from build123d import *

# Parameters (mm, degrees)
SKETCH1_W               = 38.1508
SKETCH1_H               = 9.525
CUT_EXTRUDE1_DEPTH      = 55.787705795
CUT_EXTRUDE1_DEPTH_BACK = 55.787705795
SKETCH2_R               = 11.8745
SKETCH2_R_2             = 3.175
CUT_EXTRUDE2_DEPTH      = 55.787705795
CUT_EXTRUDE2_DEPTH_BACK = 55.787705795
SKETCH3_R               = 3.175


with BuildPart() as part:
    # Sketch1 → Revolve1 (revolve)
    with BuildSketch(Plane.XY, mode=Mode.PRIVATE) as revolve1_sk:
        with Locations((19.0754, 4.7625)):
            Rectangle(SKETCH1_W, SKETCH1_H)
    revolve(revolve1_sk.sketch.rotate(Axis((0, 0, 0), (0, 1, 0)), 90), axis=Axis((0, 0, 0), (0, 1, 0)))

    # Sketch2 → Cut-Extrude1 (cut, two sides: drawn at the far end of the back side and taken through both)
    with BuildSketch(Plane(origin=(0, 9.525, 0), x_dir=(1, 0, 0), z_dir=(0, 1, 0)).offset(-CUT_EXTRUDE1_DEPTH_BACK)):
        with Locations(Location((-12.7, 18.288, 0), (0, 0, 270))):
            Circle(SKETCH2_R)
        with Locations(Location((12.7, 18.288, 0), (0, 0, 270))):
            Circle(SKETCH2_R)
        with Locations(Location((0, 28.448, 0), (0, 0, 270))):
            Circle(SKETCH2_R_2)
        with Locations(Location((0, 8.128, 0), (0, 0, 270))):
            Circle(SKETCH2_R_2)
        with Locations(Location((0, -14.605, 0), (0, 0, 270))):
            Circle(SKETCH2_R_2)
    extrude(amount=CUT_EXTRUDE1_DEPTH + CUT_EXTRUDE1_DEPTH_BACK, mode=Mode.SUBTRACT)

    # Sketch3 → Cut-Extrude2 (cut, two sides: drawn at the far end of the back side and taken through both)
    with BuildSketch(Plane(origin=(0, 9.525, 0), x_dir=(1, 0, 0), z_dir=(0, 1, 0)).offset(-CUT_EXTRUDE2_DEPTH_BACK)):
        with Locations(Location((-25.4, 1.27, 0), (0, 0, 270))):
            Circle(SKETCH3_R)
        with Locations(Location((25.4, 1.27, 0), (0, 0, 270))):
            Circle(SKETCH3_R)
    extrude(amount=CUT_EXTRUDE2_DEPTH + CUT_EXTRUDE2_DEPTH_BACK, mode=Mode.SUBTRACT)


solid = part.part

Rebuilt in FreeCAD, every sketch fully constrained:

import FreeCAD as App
import Part
import Sketcher

V = App.Vector
Q = App.Units.Quantity


def add_polygon(sketch, points):
    """Adds a closed chain of lines whose ends are joined by coincident constraints."""
    first, n = sketch.GeometryCount, len(points)
    for a, b in zip(points, points[1:] + points[:1]):
        sketch.addGeometry(Part.LineSegment(App.Vector(*a, 0), App.Vector(*b, 0)), False)
    for i in range(n):
        sketch.addConstraint(Sketcher.Constraint("Coincident", first + i, 2, first + (i + 1) % n, 1))

doc = App.newDocument("Part")
body = doc.addObject("PartDesign::Body", "Body")

# Sketch on XY plane
sketch1 = body.newObject("Sketcher::SketchObject", "Sketch")
sketch1.AttachmentSupport = (doc.getObject("XY_Plane"), [""])
sketch1.MapMode = "FlatFace"
add_polygon(sketch1, [(0, 10), (0, 0), (38, 0), (38, 10)])  # lines 0-3
sketch1.addConstraint(Sketcher.Constraint("Vertical", 0))
sketch1.addConstraint(Sketcher.Constraint("Horizontal", 1))
sketch1.addConstraint(Sketcher.Constraint("Vertical", 2))
sketch1.addConstraint(Sketcher.Constraint("Horizontal", 3))
sketch1.addConstraint(Sketcher.Constraint("Coincident", 0, 2, -1, 1))
sketch1.addConstraint(Sketcher.Constraint("DistanceX", 1, 1, 1, 2, Q("1.502 in")))
sketch1.addConstraint(Sketcher.Constraint("DistanceY", 0, 2, 0, 1, Q("0.375 in")))
revolution = body.newObject("PartDesign::Revolution", "Revolution")
revolution.Profile = sketch1
revolution.ReferenceAxis = (sketch1, ["V_Axis"])
revolution.Angle = 360

# Sketch on XZ plane
sketch2 = body.newObject("Sketcher::SketchObject", "Sketch001")
sketch2.AttachmentSupport = (doc.getObject("XZ_Plane"), [""])
sketch2.MapMode = "FlatFace"
sketch2.AttachmentOffset = App.Placement(V(0, 0, -0.375 * 25.4), App.Rotation())
sketch2.addGeometry(Part.Circle(V(-12.7, -18.3, 0), V(0, 0, 1), 11.9), False)
sketch2.addGeometry(Part.Circle(V(12.7, -18.3, 0), V(0, 0, 1), 11.9), False)
sketch2.addGeometry(Part.Circle(V(0, -28.4, 0), V(0, 0, 1), 3.2), False)
sketch2.addGeometry(Part.Circle(V(0, -8.1, 0), V(0, 0, 1), 3.2), False)
sketch2.addGeometry(Part.Circle(V(0, 14.6, 0), V(0, 0, 1), 3.2), False)
sketch2.addConstraint(Sketcher.Constraint("Equal", 0, 1))
sketch2.addConstraint(Sketcher.Constraint("Equal", 2, 3))
sketch2.addConstraint(Sketcher.Constraint("Equal", 3, 4))
sketch2.addConstraint(Sketcher.Constraint("Symmetric", 0, 3, 1, 3, -2))
sketch2.addConstraint(Sketcher.Constraint("PointOnObject", 2, 3, -2))
sketch2.addConstraint(Sketcher.Constraint("PointOnObject", 3, 3, -2))
sketch2.addConstraint(Sketcher.Constraint("PointOnObject", 4, 3, -2))
sketch2.addConstraint(Sketcher.Constraint("Diameter", 2, Q("0.25 in")))
sketch2.addConstraint(Sketcher.Constraint("Diameter", 0, Q("0.935 in")))
sketch2.addConstraint(Sketcher.Constraint("DistanceX", 0, 3, 1, 3, Q("1 in")))
sketch2.addConstraint(Sketcher.Constraint("DistanceY", 2, 3, 0, 3, Q("0.4 in")))
sketch2.addConstraint(Sketcher.Constraint("DistanceY", 0, 3, 3, 3, Q("0.4 in")))
sketch2.addConstraint(Sketcher.Constraint("DistanceY", 0, 3, -1, 1, Q("0.72 in")))
sketch2.addConstraint(Sketcher.Constraint("DistanceY", -1, 1, 4, 3, Q("0.575 in")))
pocket1 = body.newObject("PartDesign::Pocket", "Pocket")
pocket1.Profile = sketch2
pocket1.Type = "ThroughAll"
pocket1.Midplane = True

# Sketch on XZ plane
sketch3 = body.newObject("Sketcher::SketchObject", "Sketch002")
sketch3.AttachmentSupport = (doc.getObject("XZ_Plane"), [""])
sketch3.MapMode = "FlatFace"
sketch3.AttachmentOffset = App.Placement(V(0, 0, -0.375 * 25.4), App.Rotation())
sketch3.addGeometry(Part.Circle(V(-25.4, -1.3, 0), V(0, 0, 1), 3.2), False)
sketch3.addGeometry(Part.Circle(V(25.4, -1.3, 0), V(0, 0, 1), 3.2), False)
sketch3.addConstraint(Sketcher.Constraint("Equal", 0, 1))
sketch3.addConstraint(Sketcher.Constraint("Symmetric", 0, 3, 1, 3, -2))
sketch3.addConstraint(Sketcher.Constraint("Diameter", 0, Q("0.25 in")))
sketch3.addConstraint(Sketcher.Constraint("DistanceX", 0, 3, -1, 1, Q("1 in")))
sketch3.addConstraint(Sketcher.Constraint("DistanceY", 0, 3, -1, 1, Q("0.05 in")))
pocket2 = body.newObject("PartDesign::Pocket", "Pocket001")
pocket2.Profile = sketch3
pocket2.Type = "ThroughAll"
pocket2.Midplane = True

doc.recompute()
